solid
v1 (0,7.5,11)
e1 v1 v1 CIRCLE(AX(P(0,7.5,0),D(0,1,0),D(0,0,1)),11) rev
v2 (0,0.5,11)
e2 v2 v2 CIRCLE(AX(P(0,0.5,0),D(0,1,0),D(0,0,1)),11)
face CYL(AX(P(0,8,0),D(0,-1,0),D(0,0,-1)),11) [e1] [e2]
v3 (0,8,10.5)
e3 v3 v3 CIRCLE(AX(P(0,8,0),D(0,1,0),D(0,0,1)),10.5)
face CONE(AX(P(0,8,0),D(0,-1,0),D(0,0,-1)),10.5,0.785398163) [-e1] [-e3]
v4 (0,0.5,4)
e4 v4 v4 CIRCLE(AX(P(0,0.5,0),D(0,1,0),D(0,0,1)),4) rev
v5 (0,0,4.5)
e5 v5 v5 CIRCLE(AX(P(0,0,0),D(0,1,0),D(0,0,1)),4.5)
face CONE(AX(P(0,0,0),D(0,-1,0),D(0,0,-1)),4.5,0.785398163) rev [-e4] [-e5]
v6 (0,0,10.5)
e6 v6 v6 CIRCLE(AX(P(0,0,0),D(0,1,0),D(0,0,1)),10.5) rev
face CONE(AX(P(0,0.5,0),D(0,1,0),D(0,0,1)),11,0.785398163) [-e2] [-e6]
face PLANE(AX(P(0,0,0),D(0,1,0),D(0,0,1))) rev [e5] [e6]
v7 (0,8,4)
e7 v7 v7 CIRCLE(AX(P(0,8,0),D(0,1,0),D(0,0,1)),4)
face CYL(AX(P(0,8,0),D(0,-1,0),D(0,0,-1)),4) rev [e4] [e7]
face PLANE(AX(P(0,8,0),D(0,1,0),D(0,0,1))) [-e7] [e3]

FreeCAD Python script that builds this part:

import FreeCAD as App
import Part
import Sketcher

V = App.Vector


def edges_at(feature, points):
    """Names of the edges that pass closest to the given points."""
    edges = feature.Shape.Edges
    near = lambda p: min(range(len(edges)), key=lambda i: edges[i].distToShape(Part.Vertex(*p))[0])
    return sorted({f"Edge{near(p) + 1}" for p in points})

doc = App.newDocument("Part")
params = doc.addObject("Spreadsheet::Sheet", "Params")
for row, (alias, value) in enumerate([
    ("sketch1_diameter", "22 mm"),
    ("sketch1_diameter2", "8 mm"),
    ("pad1_length", "8 mm"),
    ("chamfer_size", "0.5 mm"),
], start=1):
    params.set(f"A{row}", alias)
    params.set(f"B{row}", "=" + value)
    params.setAlias(f"B{row}", alias)

body = doc.addObject("PartDesign::Body", "Body")

# Sketch on XZ plane
sketch1 = doc.addObject("Sketcher::SketchObject", "Sketch")
body.addObject(sketch1)
sketch1.AttachmentSupport = (doc.XZ_Plane, [""])
sketch1.MapMode = "FlatFace"
sketch1.addGeometry([
    Part.Circle(V(0, 0, 0), V(0, 0, 1), 11),
    Part.Circle(V(0, 0, 0), V(0, 0, 1), 4),
], False)
sketch1.addConstraint([
    Sketcher.Constraint("Coincident", 0, 3, -1, 1),
    Sketcher.Constraint("Coincident", 1, 3, -1, 1),
    Sketcher.Constraint("Diameter", 0, 22.0),
    Sketcher.Constraint("Diameter", 1, 8.0),
])
sketch1.setExpression("Constraints[2]", "Params.sketch1_diameter")
sketch1.setExpression("Constraints[3]", "Params.sketch1_diameter2")
pad1 = doc.addObject("PartDesign::Pad", "Pad")
body.addObject(pad1)
pad1.Profile = sketch1
pad1.setExpression("Length", "Params.pad1_length")
pad1.Reversed = True
doc.recompute()

chamfer = doc.addObject("PartDesign::Chamfer", "Chamfer")
body.addObject(chamfer)
chamfer.Base = (pad1, edges_at(pad1, [(0, 0, -11), (0, 8, -11), (0, 0, -4)]))
chamfer.setExpression("Size", "Params.chamfer_size")

doc.recompute()
